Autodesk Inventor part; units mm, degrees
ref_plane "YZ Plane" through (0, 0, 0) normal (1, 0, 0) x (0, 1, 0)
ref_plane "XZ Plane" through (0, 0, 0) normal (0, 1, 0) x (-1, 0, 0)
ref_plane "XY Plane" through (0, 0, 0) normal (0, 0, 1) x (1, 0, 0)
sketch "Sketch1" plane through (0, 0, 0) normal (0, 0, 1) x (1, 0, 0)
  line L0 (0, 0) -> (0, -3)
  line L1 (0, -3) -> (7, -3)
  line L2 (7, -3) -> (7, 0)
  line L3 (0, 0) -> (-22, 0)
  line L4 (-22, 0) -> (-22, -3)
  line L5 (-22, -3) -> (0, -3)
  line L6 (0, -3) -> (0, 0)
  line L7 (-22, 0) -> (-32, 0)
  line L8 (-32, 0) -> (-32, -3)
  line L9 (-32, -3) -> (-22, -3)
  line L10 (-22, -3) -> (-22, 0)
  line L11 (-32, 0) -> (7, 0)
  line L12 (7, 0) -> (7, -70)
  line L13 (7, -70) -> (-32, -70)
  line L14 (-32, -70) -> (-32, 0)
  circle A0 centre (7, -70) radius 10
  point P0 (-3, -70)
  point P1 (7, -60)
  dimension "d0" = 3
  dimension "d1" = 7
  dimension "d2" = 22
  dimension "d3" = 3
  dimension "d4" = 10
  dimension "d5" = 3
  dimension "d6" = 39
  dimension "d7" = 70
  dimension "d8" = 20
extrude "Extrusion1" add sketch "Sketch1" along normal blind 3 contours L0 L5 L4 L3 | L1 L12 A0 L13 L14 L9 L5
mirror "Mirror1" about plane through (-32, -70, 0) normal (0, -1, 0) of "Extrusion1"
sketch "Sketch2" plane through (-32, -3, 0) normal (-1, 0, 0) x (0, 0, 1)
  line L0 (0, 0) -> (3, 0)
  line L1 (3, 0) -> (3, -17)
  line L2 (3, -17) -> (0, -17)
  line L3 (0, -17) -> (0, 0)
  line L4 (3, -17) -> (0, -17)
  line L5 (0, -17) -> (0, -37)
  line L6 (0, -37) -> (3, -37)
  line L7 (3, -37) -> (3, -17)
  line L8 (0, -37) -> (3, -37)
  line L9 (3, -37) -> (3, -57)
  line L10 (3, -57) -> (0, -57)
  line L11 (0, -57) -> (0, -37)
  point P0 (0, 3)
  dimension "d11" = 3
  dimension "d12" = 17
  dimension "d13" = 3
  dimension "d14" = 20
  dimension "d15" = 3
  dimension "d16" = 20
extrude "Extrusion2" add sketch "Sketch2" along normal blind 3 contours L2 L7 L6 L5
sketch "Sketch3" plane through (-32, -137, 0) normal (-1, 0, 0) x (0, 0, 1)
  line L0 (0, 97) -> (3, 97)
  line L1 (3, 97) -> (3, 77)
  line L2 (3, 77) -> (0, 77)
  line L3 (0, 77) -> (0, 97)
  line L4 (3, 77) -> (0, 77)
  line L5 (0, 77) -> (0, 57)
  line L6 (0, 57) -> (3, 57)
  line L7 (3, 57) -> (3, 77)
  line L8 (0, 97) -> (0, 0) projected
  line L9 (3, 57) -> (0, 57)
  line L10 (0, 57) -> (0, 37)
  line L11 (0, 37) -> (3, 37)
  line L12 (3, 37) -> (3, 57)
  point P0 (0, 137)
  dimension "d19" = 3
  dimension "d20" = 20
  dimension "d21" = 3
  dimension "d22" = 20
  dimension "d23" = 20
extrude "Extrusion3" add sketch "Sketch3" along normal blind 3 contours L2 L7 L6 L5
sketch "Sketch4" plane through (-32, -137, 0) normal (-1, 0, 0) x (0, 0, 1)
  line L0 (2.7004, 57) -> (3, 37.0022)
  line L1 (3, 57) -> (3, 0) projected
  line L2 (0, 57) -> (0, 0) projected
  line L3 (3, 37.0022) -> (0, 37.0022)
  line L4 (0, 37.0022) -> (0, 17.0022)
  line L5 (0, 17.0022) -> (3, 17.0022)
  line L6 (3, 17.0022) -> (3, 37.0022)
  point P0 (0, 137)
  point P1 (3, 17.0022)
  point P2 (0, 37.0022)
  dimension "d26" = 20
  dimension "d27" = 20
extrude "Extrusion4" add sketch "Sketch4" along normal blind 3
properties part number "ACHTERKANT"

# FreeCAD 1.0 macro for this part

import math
import FreeCAD as App
import Part
import Sketcher
Q = App.Units.Quantity


def add_polygon(sketch, points):
    """Adds a closed chain of lines whose ends are joined by coincident constraints."""
    first, n = sketch.GeometryCount, len(points)
    for a, b in zip(points, points[1:] + points[:1]):
        sketch.addGeometry(Part.LineSegment(App.Vector(*a, 0), App.Vector(*b, 0)), False)
    for i in range(n):
        sketch.addConstraint(Sketcher.Constraint("Coincident", first + i, 2, first + (i + 1) % n, 1))

doc = App.newDocument("Part")
body = doc.addObject("PartDesign::Body", "Body")

# Sketch on XY plane
sketch1 = body.newObject("Sketcher::SketchObject", "Sketch")
sketch1.AttachmentSupport = (doc.getObject("XY_Plane"), [""])
sketch1.MapMode = "FlatFace"
sketch1.addGeometry(Part.LineSegment(App.Vector(0, -3, 0), App.Vector(0, 0, 0)), False)
sketch1.addGeometry(Part.LineSegment(App.Vector(0, 0, 0), App.Vector(-22, 0, 0)), False)
sketch1.addGeometry(Part.LineSegment(App.Vector(-22, 0, 0), App.Vector(-22, -3, 0)), False)
sketch1.addGeometry(Part.LineSegment(App.Vector(-22, -3, 0), App.Vector(-32, -3, 0)), False)
sketch1.addGeometry(Part.LineSegment(App.Vector(-32, -3, 0), App.Vector(-32, -70, 0)), False)
sketch1.addGeometry(Part.LineSegment(App.Vector(-32, -70, 0), App.Vector(-3, -70, 0)), False)
sketch1.addGeometry(Part.ArcOfCircle(Part.Circle(App.Vector(7, -70, 0), App.Vector(0, 0, 1), 10), math.radians(90), math.radians(180)), False)
sketch1.addGeometry(Part.LineSegment(App.Vector(7, -60, 0), App.Vector(7, -3, 0)), False)
sketch1.addGeometry(Part.LineSegment(App.Vector(7, -3, 0), App.Vector(0, -3, 0)), False)
sketch1.addConstraint(Sketcher.Constraint("Coincident", 0, 2, 1, 1))
sketch1.addConstraint(Sketcher.Constraint("Coincident", 1, 2, 2, 1))
sketch1.addConstraint(Sketcher.Constraint("Coincident", 2, 2, 3, 1))
sketch1.addConstraint(Sketcher.Constraint("Coincident", 3, 2, 4, 1))
sketch1.addConstraint(Sketcher.Constraint("Coincident", 4, 2, 5, 1))
sketch1.addConstraint(Sketcher.Constraint("Coincident", 5, 2, 6, 2))
sketch1.addConstraint(Sketcher.Constraint("Coincident", 6, 1, 7, 1))
sketch1.addConstraint(Sketcher.Constraint("Coincident", 7, 2, 8, 1))
sketch1.addConstraint(Sketcher.Constraint("Coincident", 8, 2, 0, 1))
sketch1.addConstraint(Sketcher.Constraint("Vertical", 0))
sketch1.addConstraint(Sketcher.Constraint("Horizontal", 1))
sketch1.addConstraint(Sketcher.Constraint("Vertical", 2))
sketch1.addConstraint(Sketcher.Constraint("Horizontal", 3))
sketch1.addConstraint(Sketcher.Constraint("Vertical", 4))
sketch1.addConstraint(Sketcher.Constraint("Horizontal", 5))
sketch1.addConstraint(Sketcher.Constraint("Vertical", 7))
sketch1.addConstraint(Sketcher.Constraint("Horizontal", 8))
sketch1.addConstraint(Sketcher.Constraint("Coincident", 0, 2, -1, 1))
sketch1.addConstraint(Sketcher.Constraint("Horizontal", 6, 3, 4, 2))
sketch1.addConstraint(Sketcher.Constraint("Horizontal", 3, 2, 7, 2))
sketch1.addConstraint(Sketcher.Constraint("Radius", 6, Q("10 mm")))
sketch1.addConstraint(Sketcher.Constraint("DistanceX", 1, 2, 1, 1, Q("22 mm")))
sketch1.addConstraint(Sketcher.Constraint("DistanceX", 3, 2, 3, 1, Q("10 mm")))
sketch1.addConstraint(Sketcher.Constraint("DistanceX", 8, 2, 8, 1, Q("7 mm")))
sketch1.addConstraint(Sketcher.Constraint("DistanceY", 0, 1, 0, 2, Q("3 mm")))
sketch1.addConstraint(Sketcher.Constraint("DistanceX", -1, 1, 6, 3, Q("7 mm")))
sketch1.addConstraint(Sketcher.Constraint("DistanceY", 6, 3, -1, 1, Q("70 mm")))
pad1 = body.newObject("PartDesign::Pad", "Pad")
pad1.Profile = sketch1
pad1.Length = 3
doc.recompute()

datumplane = body.newObject("PartDesign::Plane", "DatumPlane")
datumplane.AttachmentSupport = (doc.getObject("XZ_Plane"), [""])
datumplane.MapMode = "FlatFace"
datumplane.AttachmentOffset = App.Placement(App.Vector(0, 0, 70), App.Rotation())
mirrored = body.newObject("PartDesign::Mirrored", "Mirrored")
mirrored.Originals = [pad1]
mirrored.MirrorPlane = (datumplane, [""])
body.Tip = mirrored

# Sketch on YZ plane
sketch2 = body.newObject("Sketcher::SketchObject", "Sketch001")
sketch2.AttachmentSupport = (doc.getObject("YZ_Plane"), [""])
sketch2.MapMode = "FlatFace"
sketch2.AttachmentOffset = App.Placement(App.Vector(0, 0, -32), App.Rotation())
add_polygon(sketch2, [(-20, 3), (-20, 0), (-40, 0), (-40, 3)])  # lines 0-3
sketch2.addConstraint(Sketcher.Constraint("Vertical", 0))
sketch2.addConstraint(Sketcher.Constraint("Horizontal", 1))
sketch2.addConstraint(Sketcher.Constraint("Vertical", 2))
sketch2.addConstraint(Sketcher.Constraint("Horizontal", 3))
sketch2.addConstraint(Sketcher.Constraint("PointOnObject", 0, 2, -1))
sketch2.addConstraint(Sketcher.Constraint("DistanceX", 1, 2, 1, 1, Q("20 mm")))
sketch2.addConstraint(Sketcher.Constraint("DistanceY", 0, 2, 0, 1, Q("3 mm")))
sketch2.addConstraint(Sketcher.Constraint("DistanceX", 0, 2, -1, 1, Q("20 mm")))
pad2 = body.newObject("PartDesign::Pad", "Pad001")
pad2.Profile = sketch2
pad2.Length = 3
pad2.Reversed = True

# Sketch on YZ plane
sketch3 = body.newObject("Sketcher::SketchObject", "Sketch002")
sketch3.AttachmentSupport = (doc.getObject("YZ_Plane"), [""])
sketch3.MapMode = "FlatFace"
sketch3.AttachmentOffset = App.Placement(App.Vector(0, 0, -32), App.Rotation())
add_polygon(sketch3, [(-60, 3), (-60, 0), (-80, 0), (-80, 3)])  # lines 0-3
sketch3.addConstraint(Sketcher.Constraint("Vertical", 0))
sketch3.addConstraint(Sketcher.Constraint("Horizontal", 1))
sketch3.addConstraint(Sketcher.Constraint("Vertical", 2))
sketch3.addConstraint(Sketcher.Constraint("Horizontal", 3))
sketch3.addConstraint(Sketcher.Constraint("PointOnObject", 0, 2, -1))
sketch3.addConstraint(Sketcher.Constraint("DistanceX", 1, 2, 1, 1, Q("20 mm")))
sketch3.addConstraint(Sketcher.Constraint("DistanceY", 0, 2, 0, 1, Q("3 mm")))
sketch3.addConstraint(Sketcher.Constraint("DistanceX", 0, 2, -1, 1, Q("60 mm")))
pad3 = body.newObject("PartDesign::Pad", "Pad002")
pad3.Profile = sketch3
pad3.Length = 3
pad3.Reversed = True

# Sketch on YZ plane
sketch4 = body.newObject("Sketcher::SketchObject", "Sketch003")
sketch4.AttachmentSupport = (doc.getObject("YZ_Plane"), [""])
sketch4.MapMode = "FlatFace"
sketch4.AttachmentOffset = App.Placement(App.Vector(0, 0, -32), App.Rotation())
add_polygon(sketch4, [(-120, 3), (-100, 3), (-100, 0), (-120, 0)])  # lines 0-3
sketch4.addConstraint(Sketcher.Constraint("Horizontal", 0))
sketch4.addConstraint(Sketcher.Constraint("Vertical", 1))
sketch4.addConstraint(Sketcher.Constraint("Horizontal", 2))
sketch4.addConstraint(Sketcher.Constraint("Vertical", 3))
sketch4.addConstraint(Sketcher.Constraint("PointOnObject", 1, 2, -1))
sketch4.addConstraint(Sketcher.Constraint("DistanceX", 0, 1, 0, 2, Q("20 mm")))
sketch4.addConstraint(Sketcher.Constraint("DistanceY", 1, 2, 1, 1, Q("3 mm")))
sketch4.addConstraint(Sketcher.Constraint("DistanceX", 0, 2, -1, 1, Q("99.9978 mm")))
pad4 = body.newObject("PartDesign::Pad", "Pad003")
pad4.Profile = sketch4
pad4.Length = 3
pad4.Reversed = True

doc.recompute()
